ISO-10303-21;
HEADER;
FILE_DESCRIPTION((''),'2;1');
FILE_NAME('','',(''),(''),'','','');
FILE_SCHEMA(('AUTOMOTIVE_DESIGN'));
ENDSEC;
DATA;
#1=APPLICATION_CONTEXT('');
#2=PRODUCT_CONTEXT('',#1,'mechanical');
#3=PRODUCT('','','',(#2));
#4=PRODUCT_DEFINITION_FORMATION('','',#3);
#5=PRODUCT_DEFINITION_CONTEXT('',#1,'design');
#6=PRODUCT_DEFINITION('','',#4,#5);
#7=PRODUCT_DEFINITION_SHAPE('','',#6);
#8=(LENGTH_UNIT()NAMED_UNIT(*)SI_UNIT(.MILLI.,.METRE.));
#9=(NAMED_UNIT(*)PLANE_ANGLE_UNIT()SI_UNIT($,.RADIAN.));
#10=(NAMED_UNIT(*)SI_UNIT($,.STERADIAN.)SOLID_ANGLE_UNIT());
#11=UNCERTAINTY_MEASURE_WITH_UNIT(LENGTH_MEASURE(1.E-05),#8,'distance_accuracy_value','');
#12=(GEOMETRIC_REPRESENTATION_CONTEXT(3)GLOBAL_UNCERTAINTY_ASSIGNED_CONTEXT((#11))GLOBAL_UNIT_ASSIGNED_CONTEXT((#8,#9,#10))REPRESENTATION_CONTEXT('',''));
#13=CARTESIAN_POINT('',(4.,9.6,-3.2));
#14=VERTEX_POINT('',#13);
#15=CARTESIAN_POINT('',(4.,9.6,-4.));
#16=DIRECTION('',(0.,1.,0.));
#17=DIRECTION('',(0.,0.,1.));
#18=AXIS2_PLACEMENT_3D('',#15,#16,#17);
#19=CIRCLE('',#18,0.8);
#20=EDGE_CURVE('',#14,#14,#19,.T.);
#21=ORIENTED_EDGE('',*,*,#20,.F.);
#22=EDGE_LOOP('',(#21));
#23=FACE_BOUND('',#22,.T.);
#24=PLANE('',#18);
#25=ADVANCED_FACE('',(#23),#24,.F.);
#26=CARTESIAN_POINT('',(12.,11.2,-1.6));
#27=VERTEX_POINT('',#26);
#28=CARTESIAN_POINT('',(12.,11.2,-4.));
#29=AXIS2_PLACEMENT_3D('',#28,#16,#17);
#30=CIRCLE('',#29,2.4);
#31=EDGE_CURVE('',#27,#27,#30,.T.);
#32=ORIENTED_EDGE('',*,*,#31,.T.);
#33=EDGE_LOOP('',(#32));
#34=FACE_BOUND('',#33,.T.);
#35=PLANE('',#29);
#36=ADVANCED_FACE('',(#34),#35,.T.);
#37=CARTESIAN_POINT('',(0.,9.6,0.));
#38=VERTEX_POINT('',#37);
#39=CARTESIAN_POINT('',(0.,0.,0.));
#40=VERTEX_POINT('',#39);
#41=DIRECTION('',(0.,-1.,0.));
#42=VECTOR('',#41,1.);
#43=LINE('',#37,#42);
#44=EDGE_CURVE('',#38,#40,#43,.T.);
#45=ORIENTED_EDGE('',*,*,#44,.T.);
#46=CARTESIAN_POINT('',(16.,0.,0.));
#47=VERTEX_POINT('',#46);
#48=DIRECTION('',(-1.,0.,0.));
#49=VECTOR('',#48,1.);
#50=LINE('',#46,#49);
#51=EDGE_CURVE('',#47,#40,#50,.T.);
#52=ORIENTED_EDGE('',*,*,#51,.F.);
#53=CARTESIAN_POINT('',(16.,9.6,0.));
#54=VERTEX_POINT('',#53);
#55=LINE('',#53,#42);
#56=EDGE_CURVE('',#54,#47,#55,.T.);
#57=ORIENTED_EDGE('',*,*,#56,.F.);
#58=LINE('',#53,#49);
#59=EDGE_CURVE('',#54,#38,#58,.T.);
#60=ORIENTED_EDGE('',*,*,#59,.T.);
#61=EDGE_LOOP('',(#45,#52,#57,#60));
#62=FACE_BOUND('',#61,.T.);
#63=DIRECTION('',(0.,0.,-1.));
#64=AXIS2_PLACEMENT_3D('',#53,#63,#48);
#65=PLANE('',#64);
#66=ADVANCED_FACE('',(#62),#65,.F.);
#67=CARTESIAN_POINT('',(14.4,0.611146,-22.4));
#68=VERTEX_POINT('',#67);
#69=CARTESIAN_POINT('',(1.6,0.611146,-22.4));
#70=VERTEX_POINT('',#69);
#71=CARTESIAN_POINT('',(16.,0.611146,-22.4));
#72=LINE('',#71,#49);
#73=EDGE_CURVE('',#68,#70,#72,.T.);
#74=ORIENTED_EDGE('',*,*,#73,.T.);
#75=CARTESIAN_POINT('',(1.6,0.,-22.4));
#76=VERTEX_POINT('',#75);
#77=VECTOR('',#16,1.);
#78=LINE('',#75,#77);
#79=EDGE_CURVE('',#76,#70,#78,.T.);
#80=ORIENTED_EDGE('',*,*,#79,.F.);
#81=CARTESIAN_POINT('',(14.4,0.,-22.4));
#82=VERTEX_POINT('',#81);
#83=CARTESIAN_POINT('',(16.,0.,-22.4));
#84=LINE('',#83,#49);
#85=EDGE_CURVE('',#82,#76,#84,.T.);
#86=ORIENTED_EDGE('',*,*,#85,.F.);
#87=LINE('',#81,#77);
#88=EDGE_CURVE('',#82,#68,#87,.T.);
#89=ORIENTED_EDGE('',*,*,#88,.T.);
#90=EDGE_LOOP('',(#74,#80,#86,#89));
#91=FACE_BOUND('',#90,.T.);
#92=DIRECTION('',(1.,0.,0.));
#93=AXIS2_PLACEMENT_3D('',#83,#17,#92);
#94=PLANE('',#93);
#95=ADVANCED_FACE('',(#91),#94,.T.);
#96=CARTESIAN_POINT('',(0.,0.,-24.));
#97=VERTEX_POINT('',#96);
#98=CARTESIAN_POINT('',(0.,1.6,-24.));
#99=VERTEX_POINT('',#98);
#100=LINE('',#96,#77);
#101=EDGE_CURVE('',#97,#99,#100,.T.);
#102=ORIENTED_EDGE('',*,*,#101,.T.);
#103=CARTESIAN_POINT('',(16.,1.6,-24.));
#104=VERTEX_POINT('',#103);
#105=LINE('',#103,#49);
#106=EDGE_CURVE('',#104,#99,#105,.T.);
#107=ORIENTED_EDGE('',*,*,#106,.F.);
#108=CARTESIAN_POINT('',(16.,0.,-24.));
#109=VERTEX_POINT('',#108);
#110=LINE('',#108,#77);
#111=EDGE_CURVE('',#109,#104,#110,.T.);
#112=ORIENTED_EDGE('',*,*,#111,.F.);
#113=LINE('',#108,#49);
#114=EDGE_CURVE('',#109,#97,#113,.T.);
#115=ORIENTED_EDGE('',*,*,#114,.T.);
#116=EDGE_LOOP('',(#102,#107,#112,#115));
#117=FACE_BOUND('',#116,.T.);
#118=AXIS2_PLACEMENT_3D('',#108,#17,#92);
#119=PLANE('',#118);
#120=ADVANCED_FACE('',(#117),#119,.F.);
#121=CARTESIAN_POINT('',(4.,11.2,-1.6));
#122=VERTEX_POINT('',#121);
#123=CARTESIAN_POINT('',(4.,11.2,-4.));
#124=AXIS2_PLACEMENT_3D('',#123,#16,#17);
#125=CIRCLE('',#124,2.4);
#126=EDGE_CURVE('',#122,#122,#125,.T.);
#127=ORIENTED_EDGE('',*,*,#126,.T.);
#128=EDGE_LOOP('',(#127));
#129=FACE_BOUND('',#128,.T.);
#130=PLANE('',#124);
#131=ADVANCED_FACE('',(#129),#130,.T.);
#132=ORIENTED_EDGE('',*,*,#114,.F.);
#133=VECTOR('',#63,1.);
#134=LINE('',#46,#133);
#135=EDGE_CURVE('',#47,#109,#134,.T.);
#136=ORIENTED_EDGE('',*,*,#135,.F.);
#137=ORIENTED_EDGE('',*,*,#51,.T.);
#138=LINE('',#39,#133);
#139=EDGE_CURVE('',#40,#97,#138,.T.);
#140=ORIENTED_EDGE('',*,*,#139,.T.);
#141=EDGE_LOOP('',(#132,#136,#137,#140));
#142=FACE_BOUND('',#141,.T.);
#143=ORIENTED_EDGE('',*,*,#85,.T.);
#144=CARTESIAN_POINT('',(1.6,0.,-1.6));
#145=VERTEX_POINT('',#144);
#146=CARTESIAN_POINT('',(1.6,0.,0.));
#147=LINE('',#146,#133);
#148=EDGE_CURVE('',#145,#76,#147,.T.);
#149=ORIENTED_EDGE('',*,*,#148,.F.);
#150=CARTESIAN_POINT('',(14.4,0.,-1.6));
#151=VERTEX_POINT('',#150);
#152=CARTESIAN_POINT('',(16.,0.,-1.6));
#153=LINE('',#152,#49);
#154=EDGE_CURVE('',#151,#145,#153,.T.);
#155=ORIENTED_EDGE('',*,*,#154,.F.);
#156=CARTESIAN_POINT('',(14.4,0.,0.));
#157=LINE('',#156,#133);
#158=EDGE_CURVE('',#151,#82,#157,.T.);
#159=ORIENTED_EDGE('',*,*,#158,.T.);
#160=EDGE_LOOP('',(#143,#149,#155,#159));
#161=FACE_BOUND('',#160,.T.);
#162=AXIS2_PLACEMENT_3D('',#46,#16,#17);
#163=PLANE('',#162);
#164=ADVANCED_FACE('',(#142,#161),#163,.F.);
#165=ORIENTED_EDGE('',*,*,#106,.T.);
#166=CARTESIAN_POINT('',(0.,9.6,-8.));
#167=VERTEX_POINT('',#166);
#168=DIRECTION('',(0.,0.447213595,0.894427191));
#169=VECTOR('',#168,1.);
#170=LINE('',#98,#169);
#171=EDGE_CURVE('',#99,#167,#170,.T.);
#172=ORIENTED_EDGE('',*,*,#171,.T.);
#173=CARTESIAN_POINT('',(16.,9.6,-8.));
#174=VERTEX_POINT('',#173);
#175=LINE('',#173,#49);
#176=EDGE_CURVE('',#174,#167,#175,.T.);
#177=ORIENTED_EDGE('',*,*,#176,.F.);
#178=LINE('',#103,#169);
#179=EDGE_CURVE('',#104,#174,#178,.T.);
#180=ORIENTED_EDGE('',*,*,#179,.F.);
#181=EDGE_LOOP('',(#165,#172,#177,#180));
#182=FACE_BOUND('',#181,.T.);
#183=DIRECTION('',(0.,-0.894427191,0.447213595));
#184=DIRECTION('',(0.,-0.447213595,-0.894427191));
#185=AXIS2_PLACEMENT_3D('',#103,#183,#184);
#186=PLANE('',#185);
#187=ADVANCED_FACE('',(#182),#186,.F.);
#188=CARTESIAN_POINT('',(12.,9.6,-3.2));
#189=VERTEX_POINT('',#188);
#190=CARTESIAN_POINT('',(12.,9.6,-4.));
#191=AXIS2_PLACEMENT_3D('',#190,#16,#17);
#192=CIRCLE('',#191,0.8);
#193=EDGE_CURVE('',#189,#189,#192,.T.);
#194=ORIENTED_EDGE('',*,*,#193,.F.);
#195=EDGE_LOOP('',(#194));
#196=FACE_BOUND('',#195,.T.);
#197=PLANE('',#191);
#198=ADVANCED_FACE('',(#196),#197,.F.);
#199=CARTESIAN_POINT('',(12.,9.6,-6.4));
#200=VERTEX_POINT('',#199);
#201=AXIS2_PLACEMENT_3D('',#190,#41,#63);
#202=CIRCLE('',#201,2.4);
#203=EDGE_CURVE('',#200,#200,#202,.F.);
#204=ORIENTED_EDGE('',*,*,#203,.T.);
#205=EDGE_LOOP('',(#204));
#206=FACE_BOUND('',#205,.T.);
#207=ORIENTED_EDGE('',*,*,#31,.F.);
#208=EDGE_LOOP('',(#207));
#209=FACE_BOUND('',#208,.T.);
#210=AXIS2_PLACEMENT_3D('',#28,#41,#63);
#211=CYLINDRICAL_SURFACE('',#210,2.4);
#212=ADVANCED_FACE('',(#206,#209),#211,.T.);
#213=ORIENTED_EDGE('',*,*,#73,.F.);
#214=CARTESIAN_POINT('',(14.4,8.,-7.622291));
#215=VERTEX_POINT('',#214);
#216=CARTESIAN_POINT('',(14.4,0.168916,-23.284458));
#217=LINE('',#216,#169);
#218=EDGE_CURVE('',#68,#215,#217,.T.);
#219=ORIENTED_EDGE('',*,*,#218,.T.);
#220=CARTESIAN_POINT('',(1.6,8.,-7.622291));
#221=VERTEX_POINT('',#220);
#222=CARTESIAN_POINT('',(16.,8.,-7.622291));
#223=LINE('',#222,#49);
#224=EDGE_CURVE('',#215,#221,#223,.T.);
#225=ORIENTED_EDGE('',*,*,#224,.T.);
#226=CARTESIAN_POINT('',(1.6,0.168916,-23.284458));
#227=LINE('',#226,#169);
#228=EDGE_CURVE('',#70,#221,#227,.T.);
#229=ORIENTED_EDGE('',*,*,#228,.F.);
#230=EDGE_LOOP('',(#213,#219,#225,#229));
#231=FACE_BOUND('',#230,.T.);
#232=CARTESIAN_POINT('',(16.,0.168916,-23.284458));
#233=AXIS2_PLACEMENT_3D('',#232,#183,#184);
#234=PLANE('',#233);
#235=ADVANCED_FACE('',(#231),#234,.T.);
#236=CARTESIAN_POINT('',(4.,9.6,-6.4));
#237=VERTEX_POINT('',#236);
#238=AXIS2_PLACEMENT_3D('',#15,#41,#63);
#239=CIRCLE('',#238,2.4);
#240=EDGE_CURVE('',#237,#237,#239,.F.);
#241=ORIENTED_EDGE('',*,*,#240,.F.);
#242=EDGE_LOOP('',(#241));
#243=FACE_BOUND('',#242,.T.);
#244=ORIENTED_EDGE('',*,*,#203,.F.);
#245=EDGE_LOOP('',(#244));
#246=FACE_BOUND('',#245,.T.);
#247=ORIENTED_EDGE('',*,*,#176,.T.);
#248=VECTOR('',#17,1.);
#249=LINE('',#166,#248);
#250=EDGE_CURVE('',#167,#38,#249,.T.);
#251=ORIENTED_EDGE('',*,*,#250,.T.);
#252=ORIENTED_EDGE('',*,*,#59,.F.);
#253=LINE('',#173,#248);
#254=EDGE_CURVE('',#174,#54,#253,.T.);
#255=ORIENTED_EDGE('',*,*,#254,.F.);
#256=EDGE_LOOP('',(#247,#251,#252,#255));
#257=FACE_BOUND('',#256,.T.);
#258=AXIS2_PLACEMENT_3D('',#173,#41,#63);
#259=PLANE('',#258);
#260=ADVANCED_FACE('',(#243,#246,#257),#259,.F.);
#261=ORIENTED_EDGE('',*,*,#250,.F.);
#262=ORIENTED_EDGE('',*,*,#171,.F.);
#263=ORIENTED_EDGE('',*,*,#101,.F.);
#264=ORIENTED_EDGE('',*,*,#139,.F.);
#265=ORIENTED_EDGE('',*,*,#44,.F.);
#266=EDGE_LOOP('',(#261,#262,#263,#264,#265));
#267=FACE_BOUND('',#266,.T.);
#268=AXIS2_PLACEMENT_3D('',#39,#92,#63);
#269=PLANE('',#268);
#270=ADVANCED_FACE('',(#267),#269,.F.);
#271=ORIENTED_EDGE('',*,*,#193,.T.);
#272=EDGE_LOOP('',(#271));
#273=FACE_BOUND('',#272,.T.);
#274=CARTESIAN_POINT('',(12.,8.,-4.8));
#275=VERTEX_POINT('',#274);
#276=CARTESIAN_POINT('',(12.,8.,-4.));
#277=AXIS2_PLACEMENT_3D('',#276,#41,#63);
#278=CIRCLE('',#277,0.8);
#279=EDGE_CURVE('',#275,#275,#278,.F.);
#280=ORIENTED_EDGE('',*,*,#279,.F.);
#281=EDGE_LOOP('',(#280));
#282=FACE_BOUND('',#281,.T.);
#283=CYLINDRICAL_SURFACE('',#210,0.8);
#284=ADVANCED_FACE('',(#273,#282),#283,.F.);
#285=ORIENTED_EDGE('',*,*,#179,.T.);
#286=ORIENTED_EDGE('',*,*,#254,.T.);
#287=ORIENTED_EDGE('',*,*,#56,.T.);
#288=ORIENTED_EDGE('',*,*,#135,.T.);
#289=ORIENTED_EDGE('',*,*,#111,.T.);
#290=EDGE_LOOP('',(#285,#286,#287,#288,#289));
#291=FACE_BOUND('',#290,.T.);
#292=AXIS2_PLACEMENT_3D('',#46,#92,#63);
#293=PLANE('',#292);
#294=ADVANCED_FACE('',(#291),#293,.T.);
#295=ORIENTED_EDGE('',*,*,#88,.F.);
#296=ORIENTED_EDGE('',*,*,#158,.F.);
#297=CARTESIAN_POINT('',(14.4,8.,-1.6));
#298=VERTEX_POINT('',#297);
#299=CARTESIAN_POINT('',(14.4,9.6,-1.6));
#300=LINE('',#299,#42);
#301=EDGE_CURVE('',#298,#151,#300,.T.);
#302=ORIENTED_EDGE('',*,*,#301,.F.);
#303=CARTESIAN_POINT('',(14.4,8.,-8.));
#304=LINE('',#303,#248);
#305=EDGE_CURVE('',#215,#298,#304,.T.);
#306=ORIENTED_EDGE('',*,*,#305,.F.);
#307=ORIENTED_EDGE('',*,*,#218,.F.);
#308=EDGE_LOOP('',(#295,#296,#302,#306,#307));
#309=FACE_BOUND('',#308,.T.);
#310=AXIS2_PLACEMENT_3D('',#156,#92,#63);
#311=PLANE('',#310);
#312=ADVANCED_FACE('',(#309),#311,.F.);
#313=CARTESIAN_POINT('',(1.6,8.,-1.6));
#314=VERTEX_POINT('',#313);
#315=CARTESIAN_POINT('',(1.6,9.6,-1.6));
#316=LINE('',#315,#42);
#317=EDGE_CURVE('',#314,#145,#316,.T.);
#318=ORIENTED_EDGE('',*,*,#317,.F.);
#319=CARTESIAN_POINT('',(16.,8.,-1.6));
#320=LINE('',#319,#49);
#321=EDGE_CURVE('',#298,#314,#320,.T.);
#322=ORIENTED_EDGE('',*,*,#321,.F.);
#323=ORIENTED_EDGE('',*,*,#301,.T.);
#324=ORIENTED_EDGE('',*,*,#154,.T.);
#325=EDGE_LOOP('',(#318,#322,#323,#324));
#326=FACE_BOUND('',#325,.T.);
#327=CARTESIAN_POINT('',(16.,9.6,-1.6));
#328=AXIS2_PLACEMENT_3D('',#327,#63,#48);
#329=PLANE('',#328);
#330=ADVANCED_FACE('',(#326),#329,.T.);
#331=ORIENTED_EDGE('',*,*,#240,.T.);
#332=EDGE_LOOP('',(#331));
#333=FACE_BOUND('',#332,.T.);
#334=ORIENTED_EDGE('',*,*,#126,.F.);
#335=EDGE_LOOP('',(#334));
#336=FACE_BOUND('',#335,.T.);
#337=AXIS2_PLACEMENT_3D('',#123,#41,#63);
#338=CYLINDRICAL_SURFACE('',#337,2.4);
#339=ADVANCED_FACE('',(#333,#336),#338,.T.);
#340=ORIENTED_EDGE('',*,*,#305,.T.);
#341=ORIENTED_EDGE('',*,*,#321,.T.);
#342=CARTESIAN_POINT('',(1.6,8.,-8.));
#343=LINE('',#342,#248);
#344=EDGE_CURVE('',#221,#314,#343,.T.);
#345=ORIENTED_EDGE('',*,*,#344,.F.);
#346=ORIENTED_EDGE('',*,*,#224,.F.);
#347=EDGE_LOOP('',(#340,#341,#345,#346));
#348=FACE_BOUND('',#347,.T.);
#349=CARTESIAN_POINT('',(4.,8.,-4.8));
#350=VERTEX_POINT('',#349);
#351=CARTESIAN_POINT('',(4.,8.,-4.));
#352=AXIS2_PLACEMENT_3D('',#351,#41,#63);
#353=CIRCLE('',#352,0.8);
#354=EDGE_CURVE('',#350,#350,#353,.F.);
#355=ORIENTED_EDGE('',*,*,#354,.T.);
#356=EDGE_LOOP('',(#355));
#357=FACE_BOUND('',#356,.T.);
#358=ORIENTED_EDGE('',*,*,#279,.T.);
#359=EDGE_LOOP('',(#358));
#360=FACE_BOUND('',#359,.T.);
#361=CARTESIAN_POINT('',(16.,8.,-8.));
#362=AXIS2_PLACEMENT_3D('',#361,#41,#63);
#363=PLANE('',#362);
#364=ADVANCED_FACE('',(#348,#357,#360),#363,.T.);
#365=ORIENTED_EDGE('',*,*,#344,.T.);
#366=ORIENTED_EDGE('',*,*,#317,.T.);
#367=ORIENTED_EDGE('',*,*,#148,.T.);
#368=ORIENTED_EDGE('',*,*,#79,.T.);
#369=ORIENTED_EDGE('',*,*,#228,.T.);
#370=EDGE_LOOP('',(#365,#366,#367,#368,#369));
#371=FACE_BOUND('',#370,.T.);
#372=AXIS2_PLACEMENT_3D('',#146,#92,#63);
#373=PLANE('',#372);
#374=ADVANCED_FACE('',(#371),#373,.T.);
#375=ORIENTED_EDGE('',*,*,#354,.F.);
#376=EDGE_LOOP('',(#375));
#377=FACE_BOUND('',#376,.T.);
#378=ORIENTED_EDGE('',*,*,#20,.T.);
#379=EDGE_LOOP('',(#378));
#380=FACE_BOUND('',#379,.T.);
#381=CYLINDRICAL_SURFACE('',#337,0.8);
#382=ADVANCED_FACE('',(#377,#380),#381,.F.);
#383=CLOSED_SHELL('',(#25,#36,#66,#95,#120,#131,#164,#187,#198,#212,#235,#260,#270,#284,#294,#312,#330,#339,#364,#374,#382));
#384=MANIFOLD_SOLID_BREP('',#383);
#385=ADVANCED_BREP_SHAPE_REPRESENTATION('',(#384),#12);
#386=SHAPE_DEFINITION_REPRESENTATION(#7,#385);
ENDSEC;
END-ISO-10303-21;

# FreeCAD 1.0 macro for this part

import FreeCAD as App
import Part
import Sketcher
Q = App.Units.Quantity


def faces_at(feature, points):
    """Names of the faces that lie closest to the given points."""
    faces = feature.Shape.Faces
    near = lambda p: min(range(len(faces)), key=lambda i: faces[i].distToShape(Part.Vertex(*p))[0])
    return sorted({f"Face{near(p) + 1}" for p in points})

doc = App.newDocument("Part")
params = doc.addObject("Spreadsheet::Sheet", "Params")
for row, (alias, value) in enumerate([
    ("sketch1_height", "24 mm"),
    ("sketch1_height2", "8 mm"),
    ("sketch1_width", "1.6 mm"),
    ("sketch1_width2", "9.6 mm"),
    ("pad1_length", "16 mm"),
    ("sketch2_diameter", "4.8 mm"),
    ("pad2_length", "1.6 mm"),
    ("thickness_wall", "1.6 mm"),
], start=1):
    params.set(f"A{row}", alias)
    params.set(f"B{row}", "=" + value)
    params.setAlias(f"B{row}", alias)

body = doc.addObject("PartDesign::Body", "Body")

# Sketch on YZ plane
sketch1 = body.newObject("Sketcher::SketchObject", "Sketch")
sketch1.AttachmentSupport = (doc.getObject("YZ_Plane"), [""])
sketch1.MapMode = "FlatFace"
sketch1.addGeometry(Part.LineSegment(App.Vector(0, 0, 0), App.Vector(0, -24, 0)), False)
sketch1.addGeometry(Part.LineSegment(App.Vector(0, -24, 0), App.Vector(1.6, -24, 0)), False)
sketch1.addGeometry(Part.LineSegment(App.Vector(1.6, -24, 0), App.Vector(9.6, -8, 0)), False)
sketch1.addGeometry(Part.LineSegment(App.Vector(9.6, -8, 0), App.Vector(9.6, 0, 0)), False)
sketch1.addGeometry(Part.LineSegment(App.Vector(9.6, 0, 0), App.Vector(0, 0, 0)), False)
sketch1.addConstraint(Sketcher.Constraint("Coincident", 0, 2, 1, 1))
sketch1.addConstraint(Sketcher.Constraint("Coincident", 1, 2, 2, 1))
sketch1.addConstraint(Sketcher.Constraint("Coincident", 2, 2, 3, 1))
sketch1.addConstraint(Sketcher.Constraint("Coincident", 3, 2, 4, 1))
sketch1.addConstraint(Sketcher.Constraint("Coincident", 4, 2, 0, 1))
sketch1.addConstraint(Sketcher.Constraint("Vertical", 0))
sketch1.addConstraint(Sketcher.Constraint("Horizontal", 1))
sketch1.addConstraint(Sketcher.Constraint("Vertical", 3))
sketch1.addConstraint(Sketcher.Constraint("Horizontal", 4))
sketch1.addConstraint(Sketcher.Constraint("Coincident", 4, 2, -1, 1))
sketch1.addConstraint(Sketcher.Constraint("DistanceY", 0, 2, 0, 1, Q("24 mm")))
sketch1.addConstraint(Sketcher.Constraint("DistanceY", 3, 1, 3, 2, Q("8 mm")))
sketch1.addConstraint(Sketcher.Constraint("DistanceX", 1, 1, 1, 2, Q("1.6 mm")))
sketch1.addConstraint(Sketcher.Constraint("DistanceX", 4, 2, 4, 1, Q("9.6 mm")))
sketch1.setExpression("Constraints[10]", "Params.sketch1_height")
sketch1.setExpression("Constraints[11]", "Params.sketch1_height2")
sketch1.setExpression("Constraints[12]", "Params.sketch1_width")
sketch1.setExpression("Constraints[13]", "Params.sketch1_width2")
pad1 = body.newObject("PartDesign::Pad", "Pad")
pad1.Profile = sketch1
pad1.setExpression("Length", "Params.pad1_length")

# Sketch on XZ plane
sketch2 = body.newObject("Sketcher::SketchObject", "Sketch001")
sketch2.AttachmentSupport = (doc.getObject("XZ_Plane"), [""])
sketch2.MapMode = "FlatFace"
sketch2.AttachmentOffset = App.Placement(App.Vector(0, 0, -9.6), App.Rotation())
sketch2.addGeometry(Part.Circle(App.Vector(4, -4, 0), App.Vector(0, 0, 1), 2.4), False)
sketch2.addGeometry(Part.Circle(App.Vector(12, -4, 0), App.Vector(0, 0, 1), 2.4), False)
sketch2.addConstraint(Sketcher.Constraint("Equal", 0, 1))
sketch2.addConstraint(Sketcher.Constraint("Horizontal", 0, 3, 1, 3))
sketch2.addConstraint(Sketcher.Constraint("Diameter", 0, Q("4.8 mm")))
sketch2.addConstraint(Sketcher.Constraint("DistanceX", -1, 1, 0, 3, Q("4 mm")))
sketch2.addConstraint(Sketcher.Constraint("DistanceY", 0, 3, -1, 1, Q("4 mm")))
sketch2.addConstraint(Sketcher.Constraint("DistanceX", -1, 1, 1, 3, Q("12 mm")))
sketch2.setExpression("Constraints[2]", "Params.sketch2_diameter")
pad2 = body.newObject("PartDesign::Pad", "Pad001")
pad2.Profile = sketch2
pad2.setExpression("Length", "Params.pad2_length")
pad2.Reversed = True
doc.recompute()

thickness = body.newObject("PartDesign::Thickness", "Thickness")
thickness.Base = (pad2, faces_at(pad2, [(8, 0, -12)]))
thickness.setExpression("Value", "Params.thickness_wall")
thickness.Reversed = True
thickness.Join = "Intersection"

doc.recompute()
